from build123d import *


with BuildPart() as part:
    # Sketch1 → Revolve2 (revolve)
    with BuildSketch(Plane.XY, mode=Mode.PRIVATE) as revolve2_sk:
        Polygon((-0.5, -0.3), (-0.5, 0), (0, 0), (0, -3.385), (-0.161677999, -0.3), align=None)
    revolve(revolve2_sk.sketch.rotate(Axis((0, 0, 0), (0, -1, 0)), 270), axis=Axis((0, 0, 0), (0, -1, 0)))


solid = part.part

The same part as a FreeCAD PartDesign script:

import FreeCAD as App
import Part
import Sketcher
Q = App.Units.Quantity


def add_polygon(sketch, points):
    """Adds a closed chain of lines whose ends are joined by coincident constraints."""
    first, n = sketch.GeometryCount, len(points)
    for a, b in zip(points, points[1:] + points[:1]):
        sketch.addGeometry(Part.LineSegment(App.Vector(*a, 0), App.Vector(*b, 0)), False)
    for i in range(n):
        sketch.addConstraint(Sketcher.Constraint("Coincident", first + i, 2, first + (i + 1) % n, 1))

doc = App.newDocument("Part")
params = doc.addObject("Spreadsheet::Sheet", "Params")
for row, (alias, value) in enumerate([
    ("sketch1_width", "0.5 mm"),
    ("sketch1_height", "0.3 mm"),
    ("revolution_angle", "360 deg"),
], start=1):
    params.set(f"A{row}", alias)
    params.set(f"B{row}", "=" + value)
    params.setAlias(f"B{row}", alias)

body = doc.addObject("PartDesign::Body", "Body")

sketch1 = body.newObject("Sketcher::SketchObject", "Sketch")
sketch1.AttachmentSupport = (doc.getObject("XY_Plane"), [""])
sketch1.MapMode = "FlatFace"
add_polygon(sketch1, [(-0.5, 0), (-0.5, -0.3), (-0.16, -0.3), (0, -3.38), (0, 0)])
sketch1.addConstraint([
    Sketcher.Constraint("Vertical", 0),
    Sketcher.Constraint("Horizontal", 1),
    Sketcher.Constraint("Vertical", 3),
    Sketcher.Constraint("Horizontal", 4),
    Sketcher.Constraint("Coincident", 3, 2, -1, 1),
    Sketcher.Constraint("Angle", 2, Q("-87 deg")),
    Sketcher.Constraint("DistanceX", 4, 2, 4, 1, Q("0.5 mm")),
    Sketcher.Constraint("DistanceY", 0, 2, 0, 1, Q("0.3 mm")),
    Sketcher.Constraint("DistanceY", 3, 1, 3, 2, Q("3.385 mm")),
])
sketch1.setExpression("Constraints[11]", "Params.sketch1_width")
sketch1.setExpression("Constraints[12]", "Params.sketch1_height")
revolution = body.newObject("PartDesign::Revolution", "Revolution")
revolution.Profile = sketch1
revolution.ReferenceAxis = (sketch1, ["V_Axis"])
revolution.setExpression("Angle", "Params.revolution_angle")

doc.recompute()
